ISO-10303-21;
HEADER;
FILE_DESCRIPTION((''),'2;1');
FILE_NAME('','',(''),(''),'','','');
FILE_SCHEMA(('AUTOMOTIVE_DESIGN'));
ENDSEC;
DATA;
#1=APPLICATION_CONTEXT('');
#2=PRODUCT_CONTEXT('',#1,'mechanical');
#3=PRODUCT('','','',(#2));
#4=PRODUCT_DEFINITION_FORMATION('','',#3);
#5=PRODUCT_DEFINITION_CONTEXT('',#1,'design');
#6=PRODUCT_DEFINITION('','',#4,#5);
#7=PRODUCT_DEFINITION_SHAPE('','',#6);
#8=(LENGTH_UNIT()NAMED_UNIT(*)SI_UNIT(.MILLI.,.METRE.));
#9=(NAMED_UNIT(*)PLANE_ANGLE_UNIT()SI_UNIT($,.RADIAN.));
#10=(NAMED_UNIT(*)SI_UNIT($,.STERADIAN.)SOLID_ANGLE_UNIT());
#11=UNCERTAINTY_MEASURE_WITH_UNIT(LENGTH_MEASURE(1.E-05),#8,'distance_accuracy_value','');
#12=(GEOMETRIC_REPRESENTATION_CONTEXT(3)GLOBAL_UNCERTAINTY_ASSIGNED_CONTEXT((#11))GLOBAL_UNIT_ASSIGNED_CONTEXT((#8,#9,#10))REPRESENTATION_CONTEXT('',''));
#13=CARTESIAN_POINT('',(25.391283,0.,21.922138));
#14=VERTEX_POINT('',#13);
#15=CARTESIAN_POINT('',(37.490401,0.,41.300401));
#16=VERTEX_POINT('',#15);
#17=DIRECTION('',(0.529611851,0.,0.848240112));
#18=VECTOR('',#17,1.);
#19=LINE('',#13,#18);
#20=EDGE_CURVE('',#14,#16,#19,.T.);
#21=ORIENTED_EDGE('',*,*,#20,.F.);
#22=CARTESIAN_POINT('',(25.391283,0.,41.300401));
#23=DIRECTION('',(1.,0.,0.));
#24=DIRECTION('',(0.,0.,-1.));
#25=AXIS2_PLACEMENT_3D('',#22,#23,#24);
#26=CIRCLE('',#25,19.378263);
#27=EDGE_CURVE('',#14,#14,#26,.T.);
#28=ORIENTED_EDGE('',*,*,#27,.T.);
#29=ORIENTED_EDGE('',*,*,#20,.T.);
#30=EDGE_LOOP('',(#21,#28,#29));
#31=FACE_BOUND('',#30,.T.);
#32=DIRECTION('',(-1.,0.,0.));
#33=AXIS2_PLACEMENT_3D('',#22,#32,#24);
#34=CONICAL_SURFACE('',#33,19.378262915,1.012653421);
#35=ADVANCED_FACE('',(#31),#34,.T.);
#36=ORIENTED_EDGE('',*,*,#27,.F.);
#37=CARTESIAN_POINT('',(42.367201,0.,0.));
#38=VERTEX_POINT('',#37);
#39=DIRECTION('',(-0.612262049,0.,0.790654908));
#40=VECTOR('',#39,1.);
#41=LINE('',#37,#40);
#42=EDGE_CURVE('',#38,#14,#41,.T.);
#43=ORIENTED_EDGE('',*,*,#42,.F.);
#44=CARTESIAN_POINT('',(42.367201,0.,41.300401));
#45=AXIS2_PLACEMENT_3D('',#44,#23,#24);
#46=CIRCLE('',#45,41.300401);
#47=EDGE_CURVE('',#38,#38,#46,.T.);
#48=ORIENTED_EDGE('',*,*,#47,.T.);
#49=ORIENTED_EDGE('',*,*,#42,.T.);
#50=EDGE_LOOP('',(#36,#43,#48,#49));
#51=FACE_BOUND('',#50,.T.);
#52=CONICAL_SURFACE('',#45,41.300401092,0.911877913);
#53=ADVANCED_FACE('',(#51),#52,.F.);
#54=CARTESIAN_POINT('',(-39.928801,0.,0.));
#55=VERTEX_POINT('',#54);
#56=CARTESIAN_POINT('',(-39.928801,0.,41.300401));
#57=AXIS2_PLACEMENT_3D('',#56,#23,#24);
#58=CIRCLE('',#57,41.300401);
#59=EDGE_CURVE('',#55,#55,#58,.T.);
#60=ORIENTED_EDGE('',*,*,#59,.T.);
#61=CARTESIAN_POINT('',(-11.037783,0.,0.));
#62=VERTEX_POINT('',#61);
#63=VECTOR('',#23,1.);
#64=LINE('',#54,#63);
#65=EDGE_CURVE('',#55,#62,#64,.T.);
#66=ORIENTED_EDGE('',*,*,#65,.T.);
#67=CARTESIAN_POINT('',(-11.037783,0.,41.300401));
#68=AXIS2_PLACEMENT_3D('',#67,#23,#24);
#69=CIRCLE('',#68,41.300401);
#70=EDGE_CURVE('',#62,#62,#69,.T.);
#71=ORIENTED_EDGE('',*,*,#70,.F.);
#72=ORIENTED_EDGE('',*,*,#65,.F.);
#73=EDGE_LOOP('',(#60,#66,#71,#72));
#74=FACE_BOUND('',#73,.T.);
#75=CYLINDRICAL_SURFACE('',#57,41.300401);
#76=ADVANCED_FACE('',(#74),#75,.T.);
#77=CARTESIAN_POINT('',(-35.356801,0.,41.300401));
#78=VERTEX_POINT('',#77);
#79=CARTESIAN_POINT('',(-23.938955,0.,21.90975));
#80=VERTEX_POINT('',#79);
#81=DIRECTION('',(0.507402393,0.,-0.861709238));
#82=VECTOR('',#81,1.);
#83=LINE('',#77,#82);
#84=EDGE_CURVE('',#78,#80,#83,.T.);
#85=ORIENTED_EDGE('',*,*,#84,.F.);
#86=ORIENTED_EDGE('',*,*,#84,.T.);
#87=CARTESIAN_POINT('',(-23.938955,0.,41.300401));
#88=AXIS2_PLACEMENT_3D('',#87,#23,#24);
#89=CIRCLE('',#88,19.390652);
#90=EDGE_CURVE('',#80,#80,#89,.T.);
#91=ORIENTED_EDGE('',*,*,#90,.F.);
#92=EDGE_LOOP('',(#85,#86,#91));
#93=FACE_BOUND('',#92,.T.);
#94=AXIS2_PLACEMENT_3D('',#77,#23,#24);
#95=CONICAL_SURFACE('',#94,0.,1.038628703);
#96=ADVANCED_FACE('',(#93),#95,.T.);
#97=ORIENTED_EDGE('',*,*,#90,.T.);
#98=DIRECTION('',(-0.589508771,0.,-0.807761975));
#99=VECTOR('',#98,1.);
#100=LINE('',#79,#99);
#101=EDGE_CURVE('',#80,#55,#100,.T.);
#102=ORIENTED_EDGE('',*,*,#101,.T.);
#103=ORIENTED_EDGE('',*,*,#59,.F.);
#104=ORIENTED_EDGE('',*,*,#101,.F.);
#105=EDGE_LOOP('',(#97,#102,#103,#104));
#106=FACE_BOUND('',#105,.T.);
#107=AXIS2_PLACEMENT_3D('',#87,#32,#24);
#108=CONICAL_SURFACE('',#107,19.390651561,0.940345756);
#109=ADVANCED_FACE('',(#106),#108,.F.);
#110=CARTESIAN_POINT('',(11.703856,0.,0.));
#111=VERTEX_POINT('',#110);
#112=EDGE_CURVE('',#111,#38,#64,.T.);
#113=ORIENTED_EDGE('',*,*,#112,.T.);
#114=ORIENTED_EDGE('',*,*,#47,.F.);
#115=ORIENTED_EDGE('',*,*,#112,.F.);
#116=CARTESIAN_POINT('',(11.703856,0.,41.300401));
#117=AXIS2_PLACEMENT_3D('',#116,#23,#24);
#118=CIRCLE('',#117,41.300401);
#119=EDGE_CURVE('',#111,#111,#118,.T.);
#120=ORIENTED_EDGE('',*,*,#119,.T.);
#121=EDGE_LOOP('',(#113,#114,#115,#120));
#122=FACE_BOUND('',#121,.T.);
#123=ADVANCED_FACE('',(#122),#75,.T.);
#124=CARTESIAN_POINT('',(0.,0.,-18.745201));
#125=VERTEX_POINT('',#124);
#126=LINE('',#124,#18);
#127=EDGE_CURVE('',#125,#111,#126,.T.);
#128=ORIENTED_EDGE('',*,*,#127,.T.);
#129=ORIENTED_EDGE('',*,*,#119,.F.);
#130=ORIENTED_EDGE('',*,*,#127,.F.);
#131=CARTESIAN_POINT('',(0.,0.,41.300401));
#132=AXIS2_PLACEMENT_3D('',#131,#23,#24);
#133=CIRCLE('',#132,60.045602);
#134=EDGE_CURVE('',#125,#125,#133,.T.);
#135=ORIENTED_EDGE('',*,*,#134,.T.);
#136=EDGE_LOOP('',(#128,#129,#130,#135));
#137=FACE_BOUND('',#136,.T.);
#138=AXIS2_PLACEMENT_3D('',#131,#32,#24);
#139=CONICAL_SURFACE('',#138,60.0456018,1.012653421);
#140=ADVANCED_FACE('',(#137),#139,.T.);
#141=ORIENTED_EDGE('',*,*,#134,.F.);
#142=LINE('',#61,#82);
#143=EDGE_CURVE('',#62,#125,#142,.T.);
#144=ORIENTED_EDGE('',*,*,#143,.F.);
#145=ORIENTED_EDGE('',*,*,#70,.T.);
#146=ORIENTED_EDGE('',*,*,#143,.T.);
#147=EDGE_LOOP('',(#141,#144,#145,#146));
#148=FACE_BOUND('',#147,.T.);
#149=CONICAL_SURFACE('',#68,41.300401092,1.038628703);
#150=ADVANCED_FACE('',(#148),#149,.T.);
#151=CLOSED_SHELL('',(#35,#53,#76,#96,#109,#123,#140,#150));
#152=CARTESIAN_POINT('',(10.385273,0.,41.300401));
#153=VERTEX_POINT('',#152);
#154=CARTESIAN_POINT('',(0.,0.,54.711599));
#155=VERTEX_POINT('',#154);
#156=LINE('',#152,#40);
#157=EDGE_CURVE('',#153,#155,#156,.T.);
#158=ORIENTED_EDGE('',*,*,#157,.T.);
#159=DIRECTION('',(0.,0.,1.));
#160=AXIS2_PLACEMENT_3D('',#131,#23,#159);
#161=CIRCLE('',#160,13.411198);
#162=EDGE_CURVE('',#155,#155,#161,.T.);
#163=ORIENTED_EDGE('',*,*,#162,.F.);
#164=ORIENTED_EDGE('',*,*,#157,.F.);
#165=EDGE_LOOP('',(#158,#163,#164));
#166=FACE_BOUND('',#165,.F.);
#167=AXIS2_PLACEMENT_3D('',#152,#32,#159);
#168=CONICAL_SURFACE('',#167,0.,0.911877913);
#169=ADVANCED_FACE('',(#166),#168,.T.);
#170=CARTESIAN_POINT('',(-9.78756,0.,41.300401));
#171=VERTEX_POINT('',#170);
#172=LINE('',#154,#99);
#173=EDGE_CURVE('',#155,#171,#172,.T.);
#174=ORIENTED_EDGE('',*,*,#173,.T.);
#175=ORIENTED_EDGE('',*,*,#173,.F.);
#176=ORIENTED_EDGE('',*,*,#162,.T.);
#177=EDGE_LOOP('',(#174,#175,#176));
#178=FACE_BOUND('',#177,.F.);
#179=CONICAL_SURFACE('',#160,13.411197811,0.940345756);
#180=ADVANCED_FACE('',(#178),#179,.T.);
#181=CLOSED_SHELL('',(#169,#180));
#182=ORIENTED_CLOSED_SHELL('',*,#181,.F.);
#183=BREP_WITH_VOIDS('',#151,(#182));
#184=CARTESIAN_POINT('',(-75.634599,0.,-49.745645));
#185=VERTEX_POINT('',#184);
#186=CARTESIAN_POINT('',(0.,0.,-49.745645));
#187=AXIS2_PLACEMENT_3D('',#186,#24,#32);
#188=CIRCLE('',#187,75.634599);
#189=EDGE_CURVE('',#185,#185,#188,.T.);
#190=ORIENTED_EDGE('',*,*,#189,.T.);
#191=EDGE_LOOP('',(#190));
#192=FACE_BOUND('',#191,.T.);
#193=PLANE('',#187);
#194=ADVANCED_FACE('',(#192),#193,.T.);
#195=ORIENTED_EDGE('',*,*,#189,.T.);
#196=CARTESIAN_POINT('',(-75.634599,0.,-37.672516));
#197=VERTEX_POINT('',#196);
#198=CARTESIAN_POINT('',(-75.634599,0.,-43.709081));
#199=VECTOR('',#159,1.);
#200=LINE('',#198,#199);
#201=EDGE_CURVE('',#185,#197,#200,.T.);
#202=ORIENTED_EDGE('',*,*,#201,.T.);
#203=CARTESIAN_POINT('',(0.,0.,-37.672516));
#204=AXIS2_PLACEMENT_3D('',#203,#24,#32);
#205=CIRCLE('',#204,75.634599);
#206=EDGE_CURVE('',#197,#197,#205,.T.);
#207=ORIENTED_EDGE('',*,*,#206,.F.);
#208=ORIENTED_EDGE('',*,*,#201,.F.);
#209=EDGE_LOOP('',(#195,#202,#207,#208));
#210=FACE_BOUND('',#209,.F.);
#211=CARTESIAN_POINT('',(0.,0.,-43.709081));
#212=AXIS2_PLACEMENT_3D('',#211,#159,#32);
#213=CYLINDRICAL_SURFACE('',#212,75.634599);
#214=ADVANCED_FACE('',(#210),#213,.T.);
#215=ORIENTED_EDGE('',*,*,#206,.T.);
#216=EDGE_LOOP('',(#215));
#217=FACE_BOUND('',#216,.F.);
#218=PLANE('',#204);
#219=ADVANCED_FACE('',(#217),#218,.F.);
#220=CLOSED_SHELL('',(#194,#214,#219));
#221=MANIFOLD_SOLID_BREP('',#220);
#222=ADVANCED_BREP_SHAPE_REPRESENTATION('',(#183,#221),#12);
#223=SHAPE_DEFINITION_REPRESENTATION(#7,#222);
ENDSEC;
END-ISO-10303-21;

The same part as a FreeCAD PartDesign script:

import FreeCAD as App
import Part
import Sketcher

V = App.Vector
Q = App.Units.Quantity

doc = App.newDocument("Part")
body = doc.addObject("PartDesign::Body", "Body")

# Sketch on XZ plane
sketch1 = body.newObject("Sketcher::SketchObject", "Sketch")
sketch1.AttachmentSupport = (doc.getObject("XZ_Plane"), [""])
sketch1.MapMode = "FlatFace"
sketch1.addGeometry([
    Part.LineSegment(V(10.385273, 41.300401, 0), V(0, 54.711599, 0)),  # 0
    Part.LineSegment(V(0, 54.711599, 0), V(-9.78756, 41.300401, 0)),  # 1
    Part.LineSegment(V(-9.78756, 41.300401, 0), V(-35.356801, 41.300401, 0)),  # 2
    Part.LineSegment(V(-35.356801, 41.300401, 0), V(-23.938955, 21.90975, 0)),  # 3
    Part.LineSegment(V(-23.938955, 21.90975, 0), V(-39.928801, 0, 0)),  # 4
    Part.LineSegment(V(-39.928801, 0, 0), V(-11.037783, 0, 0)),  # 5
    Part.LineSegment(V(-11.037783, 0, 0), V(0, -18.745201, 0)),  # 6
    Part.LineSegment(V(0, -18.745201, 0), V(11.703856, 0, 0)),  # 7
    Part.LineSegment(V(11.703856, 0, 0), V(42.367201, 0, 0)),  # 8
    Part.LineSegment(V(42.367201, 0, 0), V(25.391283, 21.922138, 0)),  # 9
    Part.LineSegment(V(25.391283, 21.922138, 0), V(37.490401, 41.300401, 0)),  # 10
    Part.LineSegment(V(37.490401, 41.300401, 0), V(10.385273, 41.300401, 0)),  # 11
], False)
sketch1.addGeometry(Part.LineSegment(V(-39.928801, 41.300401, 0), V(42.367201, 41.300401, 0)), True)  # axis
sketch1.addConstraint([
    Sketcher.Constraint("Coincident", 0, 2, 1, 1),
    Sketcher.Constraint("Coincident", 1, 2, 2, 1),
    Sketcher.Constraint("Coincident", 2, 2, 3, 1),
    Sketcher.Constraint("Coincident", 3, 2, 4, 1),
    Sketcher.Constraint("Coincident", 4, 2, 5, 1),
    Sketcher.Constraint("Coincident", 5, 2, 6, 1),
    Sketcher.Constraint("Coincident", 6, 2, 7, 1),
    Sketcher.Constraint("Coincident", 7, 2, 8, 1),
    Sketcher.Constraint("Coincident", 8, 2, 9, 1),
    Sketcher.Constraint("Coincident", 9, 2, 10, 1),
    Sketcher.Constraint("Coincident", 10, 2, 11, 1),
    Sketcher.Constraint("Coincident", 11, 2, 0, 1),
    Sketcher.Constraint("Horizontal", 2),
    Sketcher.Constraint("Horizontal", 5),
    Sketcher.Constraint("Horizontal", 8),
    Sketcher.Constraint("Horizontal", 11),
    Sketcher.Constraint("Horizontal", 12),
    Sketcher.Constraint("PointOnObject", 0, 2, -2),
    Sketcher.Constraint("PointOnObject", 4, 2, -1),
    Sketcher.Constraint("PointOnObject", 6, 2, -2),
    Sketcher.Constraint("PointOnObject", 7, 2, -1),
    Sketcher.Constraint("Parallel", 1, 4),
    Sketcher.Constraint("Parallel", 3, 6),
    Sketcher.Constraint("Parallel", 0, 9),
    Sketcher.Constraint("Parallel", 7, 10),
    Sketcher.Constraint("Horizontal", 2, 2, 10, 2),
    Sketcher.Constraint("Horizontal", 11, 2, 12, 1),
    Sketcher.Constraint("Vertical", 4, 2, 12, 1),
    Sketcher.Constraint("Vertical", 8, 2, 12, 2),
    Sketcher.Constraint("DistanceX", 4, 2, 2, 2, Q("4.572 mm")),
    Sketcher.Constraint("DistanceX", 2, 2, 2, 1, Q("25.569241 mm")),
    Sketcher.Constraint("DistanceX", 5, 1, 5, 2, Q("28.891018 mm")),
    Sketcher.Constraint("DistanceY", -1, 1, 0, 2, Q("54.711599 mm")),
    Sketcher.Constraint("DistanceY", -1, 1, 1, 2, Q("41.300401 mm")),
    Sketcher.Constraint("DistanceX", 2, 2, -1, 1, Q("35.356801 mm")),
    Sketcher.Constraint("DistanceY", 6, 2, -1, 1, Q("18.745201 mm")),
    Sketcher.Constraint("DistanceX", -1, 1, 8, 2, Q("42.367201 mm")),
    Sketcher.Constraint("DistanceX", -1, 1, 10, 2, Q("37.490401 mm")),
    Sketcher.Constraint("Distance", 0, Q("16.962138 mm")),
    Sketcher.Constraint("DistanceX", 8, 1, 8, 2, Q("30.663345 mm")),
])
revolution = body.newObject("PartDesign::Revolution", "Revolution")
revolution.Profile = sketch1
revolution.ReferenceAxis = (sketch1, ["Axis0"])
revolution.Angle = 360
body2 = doc.addObject("PartDesign::Body", "Body001")

# Sketch on XZ plane
sketch2 = body2.newObject("Sketcher::SketchObject", "Sketch001")
sketch2.AttachmentSupport = (doc.getObject("XZ_Plane001"), [""])
sketch2.MapMode = "FlatFace"
sketch2.addGeometry([
    Part.LineSegment(V(-75.634599, -37.672516, 0), V(-75.634599, -49.745645, 0)),
    Part.LineSegment(V(-75.634599, -49.745645, 0), V(0, -49.745645, 0)),
    Part.LineSegment(V(0, -49.745645, 0), V(0, -37.672516, 0)),
    Part.LineSegment(V(0, -37.672516, 0), V(-75.634599, -37.672516, 0)),
], False)
sketch2.addConstraint([
    Sketcher.Constraint("Coincident", 0, 2, 1, 1),
    Sketcher.Constraint("Coincident", 1, 2, 2, 1),
    Sketcher.Constraint("Coincident", 2, 2, 3, 1),
    Sketcher.Constraint("Coincident", 3, 2, 0, 1),
    Sketcher.Constraint("Vertical", 0),
    Sketcher.Constraint("Horizontal", 1),
    Sketcher.Constraint("Vertical", 2),
    Sketcher.Constraint("Horizontal", 3),
    Sketcher.Constraint("PointOnObject", 1, 2, -2),
    Sketcher.Constraint("DistanceX", 1, 1, 1, 2, Q("75.634599 mm")),
    Sketcher.Constraint("DistanceY", 0, 2, 0, 1, Q("12.073129 mm")),
    Sketcher.Constraint("DistanceY", 0, 2, -1, 1, Q("49.745645 mm")),
])
revolution2 = body2.newObject("PartDesign::Revolution", "Revolution001")
revolution2.Profile = sketch2
revolution2.ReferenceAxis = (sketch2, ["V_Axis"])
revolution2.Angle = 360

doc.recompute()
